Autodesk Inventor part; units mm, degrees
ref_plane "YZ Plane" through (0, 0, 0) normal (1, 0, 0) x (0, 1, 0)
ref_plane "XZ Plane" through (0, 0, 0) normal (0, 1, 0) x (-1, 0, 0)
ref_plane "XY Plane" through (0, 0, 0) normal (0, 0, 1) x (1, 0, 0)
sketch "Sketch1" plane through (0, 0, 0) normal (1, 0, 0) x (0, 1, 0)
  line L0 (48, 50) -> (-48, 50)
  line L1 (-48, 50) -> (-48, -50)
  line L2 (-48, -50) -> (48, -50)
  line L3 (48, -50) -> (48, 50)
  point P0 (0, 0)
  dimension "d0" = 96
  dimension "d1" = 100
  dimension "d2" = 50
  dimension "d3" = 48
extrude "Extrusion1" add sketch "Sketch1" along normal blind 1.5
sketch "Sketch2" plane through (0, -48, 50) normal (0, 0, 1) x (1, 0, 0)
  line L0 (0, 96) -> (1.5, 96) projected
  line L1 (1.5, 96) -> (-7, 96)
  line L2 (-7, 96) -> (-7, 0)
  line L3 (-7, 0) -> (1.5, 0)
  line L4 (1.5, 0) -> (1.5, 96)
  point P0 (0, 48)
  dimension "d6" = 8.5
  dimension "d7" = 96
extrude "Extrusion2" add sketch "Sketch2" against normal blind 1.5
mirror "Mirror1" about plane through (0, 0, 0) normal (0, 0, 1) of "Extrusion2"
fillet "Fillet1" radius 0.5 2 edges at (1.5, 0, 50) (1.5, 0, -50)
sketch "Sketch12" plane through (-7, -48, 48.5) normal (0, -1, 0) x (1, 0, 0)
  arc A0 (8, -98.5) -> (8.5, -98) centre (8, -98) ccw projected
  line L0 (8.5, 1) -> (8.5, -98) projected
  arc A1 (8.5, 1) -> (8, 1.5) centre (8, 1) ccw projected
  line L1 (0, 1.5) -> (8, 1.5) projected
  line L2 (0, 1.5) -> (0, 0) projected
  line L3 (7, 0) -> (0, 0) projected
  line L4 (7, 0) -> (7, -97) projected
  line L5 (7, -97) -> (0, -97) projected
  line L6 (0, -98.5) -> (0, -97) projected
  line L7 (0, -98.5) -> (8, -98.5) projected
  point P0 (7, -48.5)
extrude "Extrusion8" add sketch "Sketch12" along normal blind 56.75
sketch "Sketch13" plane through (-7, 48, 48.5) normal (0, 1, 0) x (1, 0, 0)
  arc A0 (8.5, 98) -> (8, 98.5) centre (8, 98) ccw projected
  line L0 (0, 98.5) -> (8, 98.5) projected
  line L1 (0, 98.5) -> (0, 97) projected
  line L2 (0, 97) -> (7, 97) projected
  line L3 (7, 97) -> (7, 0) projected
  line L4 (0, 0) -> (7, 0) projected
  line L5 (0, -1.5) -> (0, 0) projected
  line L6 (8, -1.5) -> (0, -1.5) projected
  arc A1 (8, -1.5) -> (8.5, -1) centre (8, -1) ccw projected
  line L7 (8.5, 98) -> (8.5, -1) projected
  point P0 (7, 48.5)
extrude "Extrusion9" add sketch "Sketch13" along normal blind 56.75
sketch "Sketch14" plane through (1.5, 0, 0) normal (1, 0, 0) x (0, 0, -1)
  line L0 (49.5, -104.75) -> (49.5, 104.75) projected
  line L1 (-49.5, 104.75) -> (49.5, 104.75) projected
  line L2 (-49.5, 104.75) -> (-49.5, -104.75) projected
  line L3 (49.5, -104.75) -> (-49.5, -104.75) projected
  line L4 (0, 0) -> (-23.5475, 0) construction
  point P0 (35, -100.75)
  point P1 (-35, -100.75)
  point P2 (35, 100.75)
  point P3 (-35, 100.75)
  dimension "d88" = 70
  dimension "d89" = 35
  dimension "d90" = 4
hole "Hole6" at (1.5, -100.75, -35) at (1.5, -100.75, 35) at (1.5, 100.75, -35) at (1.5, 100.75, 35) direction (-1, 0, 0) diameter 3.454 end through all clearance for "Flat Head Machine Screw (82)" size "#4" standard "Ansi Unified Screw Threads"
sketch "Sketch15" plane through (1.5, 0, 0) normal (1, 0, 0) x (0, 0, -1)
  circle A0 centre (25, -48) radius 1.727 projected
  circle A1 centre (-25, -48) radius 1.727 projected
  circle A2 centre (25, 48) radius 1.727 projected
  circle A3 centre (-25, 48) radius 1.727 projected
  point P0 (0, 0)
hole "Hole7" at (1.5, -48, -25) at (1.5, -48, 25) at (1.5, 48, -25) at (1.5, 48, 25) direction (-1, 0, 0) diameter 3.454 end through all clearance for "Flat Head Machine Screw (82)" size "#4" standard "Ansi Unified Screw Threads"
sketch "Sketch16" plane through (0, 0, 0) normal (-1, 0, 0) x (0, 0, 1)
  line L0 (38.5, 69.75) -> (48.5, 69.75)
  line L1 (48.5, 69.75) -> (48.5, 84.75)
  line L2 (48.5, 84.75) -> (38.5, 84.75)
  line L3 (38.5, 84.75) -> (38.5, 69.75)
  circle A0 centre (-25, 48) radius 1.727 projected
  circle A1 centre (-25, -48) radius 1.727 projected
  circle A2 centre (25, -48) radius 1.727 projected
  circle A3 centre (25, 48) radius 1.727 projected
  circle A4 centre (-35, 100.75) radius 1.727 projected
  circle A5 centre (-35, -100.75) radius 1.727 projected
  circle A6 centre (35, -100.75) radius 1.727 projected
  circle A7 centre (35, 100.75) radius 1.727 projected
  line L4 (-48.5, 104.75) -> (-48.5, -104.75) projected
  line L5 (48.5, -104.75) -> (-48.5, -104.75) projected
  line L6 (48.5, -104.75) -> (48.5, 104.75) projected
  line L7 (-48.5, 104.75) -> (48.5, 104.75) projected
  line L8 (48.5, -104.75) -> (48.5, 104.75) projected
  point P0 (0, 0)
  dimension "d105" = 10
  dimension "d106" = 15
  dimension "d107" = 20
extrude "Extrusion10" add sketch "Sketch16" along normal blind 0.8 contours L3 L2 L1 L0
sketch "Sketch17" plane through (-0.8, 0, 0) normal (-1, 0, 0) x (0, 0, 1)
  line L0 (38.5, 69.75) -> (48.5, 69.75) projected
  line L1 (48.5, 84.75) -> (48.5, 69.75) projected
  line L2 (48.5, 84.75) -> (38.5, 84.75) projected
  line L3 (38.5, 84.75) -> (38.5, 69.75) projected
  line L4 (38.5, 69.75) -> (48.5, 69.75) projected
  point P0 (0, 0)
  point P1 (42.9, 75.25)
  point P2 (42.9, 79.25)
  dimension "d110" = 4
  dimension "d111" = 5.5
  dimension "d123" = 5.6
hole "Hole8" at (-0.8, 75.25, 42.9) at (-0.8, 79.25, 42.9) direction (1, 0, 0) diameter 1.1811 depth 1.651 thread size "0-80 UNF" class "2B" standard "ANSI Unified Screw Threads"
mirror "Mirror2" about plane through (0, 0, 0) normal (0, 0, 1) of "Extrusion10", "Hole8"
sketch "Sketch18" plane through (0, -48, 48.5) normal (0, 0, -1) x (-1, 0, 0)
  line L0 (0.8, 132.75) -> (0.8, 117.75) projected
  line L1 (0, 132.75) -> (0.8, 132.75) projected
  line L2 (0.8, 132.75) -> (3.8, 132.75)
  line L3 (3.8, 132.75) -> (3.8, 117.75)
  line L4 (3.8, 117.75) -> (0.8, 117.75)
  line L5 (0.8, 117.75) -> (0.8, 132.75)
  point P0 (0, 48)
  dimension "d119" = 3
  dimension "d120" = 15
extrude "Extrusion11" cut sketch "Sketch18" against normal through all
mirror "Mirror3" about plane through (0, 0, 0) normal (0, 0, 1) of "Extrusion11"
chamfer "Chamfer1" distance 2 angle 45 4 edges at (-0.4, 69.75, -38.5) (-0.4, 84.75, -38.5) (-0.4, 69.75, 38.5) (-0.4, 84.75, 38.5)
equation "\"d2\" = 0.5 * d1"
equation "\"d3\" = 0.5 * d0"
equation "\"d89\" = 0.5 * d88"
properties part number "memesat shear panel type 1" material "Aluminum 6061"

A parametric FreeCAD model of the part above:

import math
import FreeCAD as App
import Part
import Sketcher
Q = App.Units.Quantity


def edges_at(feature, points):
    """Names of the edges that pass closest to the given points."""
    edges = feature.Shape.Edges
    near = lambda p: min(range(len(edges)), key=lambda i: edges[i].distToShape(Part.Vertex(*p))[0])
    return sorted({f"Edge{near(p) + 1}" for p in points})

doc = App.newDocument("Part")
body = doc.addObject("PartDesign::Body", "Body")

sketch1 = body.newObject("Sketcher::SketchObject", "Sketch")
sketch1.AttachmentSupport = (doc.getObject("YZ_Plane"), [""])
sketch1.MapMode = "FlatFace"
sketch1.addGeometry([
    Part.LineSegment(App.Vector(48, -50, 0), App.Vector(48, 50, 0)),
    Part.LineSegment(App.Vector(48, 50, 0), App.Vector(-48, 50, 0)),
    Part.LineSegment(App.Vector(-48, 50, 0), App.Vector(-48, -50, 0)),
    Part.LineSegment(App.Vector(-48, -50, 0), App.Vector(48, -50, 0)),
], False)
sketch1.addConstraint([
    Sketcher.Constraint("Coincident", 0, 2, 1, 1),
    Sketcher.Constraint("Coincident", 1, 2, 2, 1),
    Sketcher.Constraint("Coincident", 2, 2, 3, 1),
    Sketcher.Constraint("Coincident", 3, 2, 0, 1),
    Sketcher.Constraint("Vertical", 0),
    Sketcher.Constraint("Horizontal", 1),
    Sketcher.Constraint("Vertical", 2),
    Sketcher.Constraint("Horizontal", 3),
    Sketcher.Constraint("Symmetric", 0, 2, 2, 2, -1, 1),
    Sketcher.Constraint("DistanceX", 1, 2, 1, 1, Q("96 mm")),
    Sketcher.Constraint("DistanceY", 0, 1, 0, 2, Q("100 mm")),
])
pad1 = body.newObject("PartDesign::Pad", "Pad")
pad1.Profile = sketch1
pad1.Length = 1.5

sketch2 = body.newObject("Sketcher::SketchObject", "Sketch001")
sketch2.AttachmentSupport = (doc.getObject("XY_Plane"), [""])
sketch2.MapMode = "FlatFace"
sketch2.AttachmentOffset = App.Placement(App.Vector(0, 0, 50), App.Rotation())
sketch2.addGeometry([
    Part.LineSegment(App.Vector(2, 48, 0), App.Vector(-7, 48, 0)),
    Part.LineSegment(App.Vector(-7, 48, 0), App.Vector(-7, -48, 0)),
    Part.LineSegment(App.Vector(-7, -48, 0), App.Vector(2, -48, 0)),
    Part.LineSegment(App.Vector(2, -48, 0), App.Vector(2, 48, 0)),
], False)
sketch2.addConstraint([
    Sketcher.Constraint("Coincident", 0, 2, 1, 1),
    Sketcher.Constraint("Coincident", 1, 2, 2, 1),
    Sketcher.Constraint("Coincident", 2, 2, 3, 1),
    Sketcher.Constraint("Coincident", 3, 2, 0, 1),
    Sketcher.Constraint("Horizontal", 0),
    Sketcher.Constraint("Vertical", 1),
    Sketcher.Constraint("Horizontal", 2),
    Sketcher.Constraint("Vertical", 3),
    Sketcher.Constraint("DistanceY", 1, 2, 1, 1, Q("96 mm")),
    Sketcher.Constraint("DistanceX", 0, 2, 0, 1, Q("8.5 mm")),
    Sketcher.Constraint("DistanceX", 0, 2, -1, 1, Q("7 mm")),
    Sketcher.Constraint("DistanceY", -1, 1, 0, 2, Q("48 mm")),
])
pad2 = body.newObject("PartDesign::Pad", "Pad001")
pad2.Profile = sketch2
pad2.Length = 1.5
pad2.Reversed = True
doc.recompute()

mirrored = body.newObject("PartDesign::Mirrored", "Mirrored")
mirrored.Originals = [pad2]
mirrored.MirrorPlane = (doc.getObject("XY_Plane"), [""])
body.Tip = mirrored
doc.recompute()

fillet = body.newObject("PartDesign::Fillet", "Fillet")
fillet.Base = (mirrored, edges_at(mirrored, [(1.5, 0, 50), (1.5, 0, -50)]))
fillet.Radius = 0.5

sketch3 = body.newObject("Sketcher::SketchObject", "Sketch002")
sketch3.AttachmentSupport = (doc.getObject("XZ_Plane"), [""])
sketch3.MapMode = "FlatFace"
sketch3.AttachmentOffset = App.Placement(App.Vector(0, 0, 48), App.Rotation())
sketch3.addGeometry([
    Part.LineSegment(App.Vector(-7, -50, 0), App.Vector(1, -50, 0)),
    Part.ArcOfCircle(Part.Circle(App.Vector(1, -49.5, 0), App.Vector(0, 0, 1), 0.5), math.radians(-90), math.radians(0)),
    Part.LineSegment(App.Vector(1.5, -49.5, 0), App.Vector(1.5, 49.5, 0)),
    Part.ArcOfCircle(Part.Circle(App.Vector(1, 49.5, 0), App.Vector(0, 0, 1), 0.5), math.radians(0), math.radians(90)),
    Part.LineSegment(App.Vector(1, 50, 0), App.Vector(-7, 50, 0)),
    Part.LineSegment(App.Vector(-7, 50, 0), App.Vector(-7, 48.5, 0)),
    Part.LineSegment(App.Vector(-7, 48.5, 0), App.Vector(0, 48.5, 0)),
    Part.LineSegment(App.Vector(0, 48.5, 0), App.Vector(0, -48.5, 0)),
    Part.LineSegment(App.Vector(0, -48.5, 0), App.Vector(-7, -48.5, 0)),
    Part.LineSegment(App.Vector(-7, -48.5, 0), App.Vector(-7, -50, 0)),
], False)
sketch3.addConstraint([
    Sketcher.Constraint("Tangent", 0, 2, 1, 1),
    Sketcher.Constraint("Tangent", 1, 2, 2, 1),
    Sketcher.Constraint("Tangent", 2, 2, 3, 1),
    Sketcher.Constraint("Tangent", 3, 2, 4, 1),
    Sketcher.Constraint("Coincident", 4, 2, 5, 1),
    Sketcher.Constraint("Coincident", 5, 2, 6, 1),
    Sketcher.Constraint("Coincident", 6, 2, 7, 1),
    Sketcher.Constraint("Coincident", 7, 2, 8, 1),
    Sketcher.Constraint("Coincident", 8, 2, 9, 1),
    Sketcher.Constraint("Coincident", 9, 2, 0, 1),
    Sketcher.Constraint("Horizontal", 0),
    Sketcher.Constraint("Vertical", 2),
    Sketcher.Constraint("Horizontal", 4),
    Sketcher.Constraint("Vertical", 5),
    Sketcher.Constraint("Horizontal", 6),
    Sketcher.Constraint("Vertical", 7),
    Sketcher.Constraint("Horizontal", 8),
    Sketcher.Constraint("Vertical", 9),
    Sketcher.Constraint("Equal", 1, 3),
    Sketcher.Constraint("Symmetric", 6, 2, 7, 2, -1, 1),
    Sketcher.Constraint("Symmetric", 4, 2, 9, 2, -1),
    Sketcher.Constraint("Radius", 1, Q("0.5 mm")),
    Sketcher.Constraint("DistanceX", 0, 1, 0, 2, Q("8 mm")),
    Sketcher.Constraint("DistanceX", 6, 1, 6, 2, Q("7 mm")),
    Sketcher.Constraint("DistanceY", 2, 1, 2, 2, Q("99 mm")),
    Sketcher.Constraint("DistanceY", 7, 2, 7, 1, Q("97 mm")),
])
pad3 = body.newObject("PartDesign::Pad", "Pad002")
pad3.Profile = sketch3
pad3.Length = 56.75

sketch4 = body.newObject("Sketcher::SketchObject", "Sketch003")
sketch4.AttachmentSupport = (doc.getObject("XZ_Plane"), [""])
sketch4.MapMode = "FlatFace"
sketch4.AttachmentOffset = App.Placement(App.Vector(0, 0, -48), App.Rotation())
sketch4.addGeometry([
    Part.LineSegment(App.Vector(1.5, 49.5, 0), App.Vector(1.5, -49.5, 0)),
    Part.ArcOfCircle(Part.Circle(App.Vector(1, -49.5, 0), App.Vector(0, 0, 1), 0.5), math.radians(-90), math.radians(0)),
    Part.LineSegment(App.Vector(1, -50, 0), App.Vector(-7, -50, 0)),
    Part.LineSegment(App.Vector(-7, -50, 0), App.Vector(-7, -48.5, 0)),
    Part.LineSegment(App.Vector(-7, -48.5, 0), App.Vector(0, -48.5, 0)),
    Part.LineSegment(App.Vector(0, -48.5, 0), App.Vector(0, 48.5, 0)),
    Part.LineSegment(App.Vector(0, 48.5, 0), App.Vector(-7, 48.5, 0)),
    Part.LineSegment(App.Vector(-7, 48.5, 0), App.Vector(-7, 50, 0)),
    Part.LineSegment(App.Vector(-7, 50, 0), App.Vector(1, 50, 0)),
    Part.ArcOfCircle(Part.Circle(App.Vector(1, 49.5, 0), App.Vector(0, 0, 1), 0.5), math.radians(0), math.radians(90)),
], False)
sketch4.addConstraint([
    Sketcher.Constraint("Tangent", 0, 2, 1, 2),
    Sketcher.Constraint("Tangent", 1, 1, 2, 1),
    Sketcher.Constraint("Coincident", 2, 2, 3, 1),
    Sketcher.Constraint("Coincident", 3, 2, 4, 1),
    Sketcher.Constraint("Coincident", 4, 2, 5, 1),
    Sketcher.Constraint("Coincident", 5, 2, 6, 1),
    Sketcher.Constraint("Coincident", 6, 2, 7, 1),
    Sketcher.Constraint("Coincident", 7, 2, 8, 1),
    Sketcher.Constraint("Tangent", 8, 2, 9, 2),
    Sketcher.Constraint("Tangent", 9, 1, 0, 1),
    Sketcher.Constraint("Vertical", 0),
    Sketcher.Constraint("Horizontal", 2),
    Sketcher.Constraint("Vertical", 3),
    Sketcher.Constraint("Horizontal", 4),
    Sketcher.Constraint("Vertical", 5),
    Sketcher.Constraint("Horizontal", 6),
    Sketcher.Constraint("Vertical", 7),
    Sketcher.Constraint("Horizontal", 8),
    Sketcher.Constraint("Equal", 1, 9),
    Sketcher.Constraint("Symmetric", 4, 2, 5, 2, -1, 1),
    Sketcher.Constraint("Symmetric", 2, 2, 7, 2, -1),
    Sketcher.Constraint("Radius", 1, Q("0.5 mm")),
    Sketcher.Constraint("DistanceX", 2, 2, 2, 1, Q("8 mm")),
    Sketcher.Constraint("DistanceX", 4, 1, 4, 2, Q("7 mm")),
    Sketcher.Constraint("DistanceY", 0, 2, 0, 1, Q("99 mm")),
    Sketcher.Constraint("DistanceY", 5, 1, 5, 2, Q("97 mm")),
])
pad4 = body.newObject("PartDesign::Pad", "Pad003")
pad4.Profile = sketch4
pad4.Length = 56.75
pad4.Reversed = True

sketch5 = body.newObject("Sketcher::SketchObject", "Sketch004")
sketch5.AttachmentSupport = (doc.getObject("YZ_Plane"), [""])
sketch5.MapMode = "FlatFace"
sketch5.AttachmentOffset = App.Placement(App.Vector(0, 0, 1.5), App.Rotation())
sketch5.addGeometry([
    Part.Circle(App.Vector(-100.8, -35, 0), App.Vector(0, 0, 1), 1.7),
    Part.Circle(App.Vector(-100.8, 35, 0), App.Vector(0, 0, 1), 1.7),
    Part.Circle(App.Vector(100.8, -35, 0), App.Vector(0, 0, 1), 1.7),
    Part.Circle(App.Vector(100.8, 35, 0), App.Vector(0, 0, 1), 1.7),
], False)
sketch5.addConstraint([
    Sketcher.Constraint("Equal", 0, 1),
    Sketcher.Constraint("Equal", 1, 2),
    Sketcher.Constraint("Equal", 2, 3),
    Sketcher.Constraint("Symmetric", 1, 3, 2, 3, -1, 1),
    Sketcher.Constraint("Symmetric", 0, 3, 3, 3, -1, 1),
    Sketcher.Constraint("Symmetric", 0, 3, 2, 3, -2),
    Sketcher.Constraint("Diameter", 0, Q("3.454 mm")),
    Sketcher.Constraint("DistanceY", 0, 3, -1, 1, Q("35 mm")),
    Sketcher.Constraint("DistanceX", 0, 3, 2, 3, Q("201.5 mm")),
])
doc.recompute()
hole = body.newObject("PartDesign::Hole", "Hole")
hole.Profile = sketch5
hole.ThreadType = "None"
hole.Diameter = 3.454
hole.DepthType = "ThroughAll"

sketch6 = body.newObject("Sketcher::SketchObject", "Sketch005")
sketch6.AttachmentSupport = (doc.getObject("YZ_Plane"), [""])
sketch6.MapMode = "FlatFace"
sketch6.AttachmentOffset = App.Placement(App.Vector(0, 0, 1.5), App.Rotation())
sketch6.addGeometry([
    Part.Circle(App.Vector(-48, -25, 0), App.Vector(0, 0, 1), 1.7),
    Part.Circle(App.Vector(-48, 25, 0), App.Vector(0, 0, 1), 1.7),
    Part.Circle(App.Vector(48, -25, 0), App.Vector(0, 0, 1), 1.7),
    Part.Circle(App.Vector(48, 25, 0), App.Vector(0, 0, 1), 1.7),
], False)
sketch6.addConstraint([
    Sketcher.Constraint("Equal", 0, 1),
    Sketcher.Constraint("Equal", 1, 2),
    Sketcher.Constraint("Equal", 2, 3),
    Sketcher.Constraint("Symmetric", 1, 3, 2, 3, -1, 1),
    Sketcher.Constraint("Symmetric", 0, 3, 3, 3, -1, 1),
    Sketcher.Constraint("Symmetric", 0, 3, 2, 3, -2),
    Sketcher.Constraint("Diameter", 0, Q("3.454 mm")),
    Sketcher.Constraint("DistanceX", 0, 3, -1, 1, Q("48 mm")),
    Sketcher.Constraint("DistanceY", 0, 3, -1, 1, Q("25 mm")),
])
doc.recompute()
hole2 = body.newObject("PartDesign::Hole", "Hole001")
hole2.Profile = sketch6
hole2.ThreadType = "None"
hole2.Diameter = 3.454
hole2.DepthType = "ThroughAll"

sketch7 = body.newObject("Sketcher::SketchObject", "Sketch006")
sketch7.AttachmentSupport = (doc.getObject("YZ_Plane"), [""])
sketch7.MapMode = "FlatFace"
sketch7.addGeometry([
    Part.LineSegment(App.Vector(85, 38, 0), App.Vector(70, 38, 0)),
    Part.LineSegment(App.Vector(70, 38, 0), App.Vector(70, 48, 0)),
    Part.LineSegment(App.Vector(70, 48, 0), App.Vector(85, 48, 0)),
    Part.LineSegment(App.Vector(85, 48, 0), App.Vector(85, 38, 0)),
], False)
sketch7.addConstraint([
    Sketcher.Constraint("Coincident", 0, 2, 1, 1),
    Sketcher.Constraint("Coincident", 1, 2, 2, 1),
    Sketcher.Constraint("Coincident", 2, 2, 3, 1),
    Sketcher.Constraint("Coincident", 3, 2, 0, 1),
    Sketcher.Constraint("Horizontal", 0),
    Sketcher.Constraint("Vertical", 1),
    Sketcher.Constraint("Horizontal", 2),
    Sketcher.Constraint("Vertical", 3),
    Sketcher.Constraint("DistanceX", 0, 2, 0, 1, Q("15 mm")),
    Sketcher.Constraint("DistanceY", 1, 1, 1, 2, Q("10 mm")),
    Sketcher.Constraint("DistanceY", -1, 1, 0, 2, Q("38.5 mm")),
    Sketcher.Constraint("DistanceX", -1, 1, 0, 2, Q("69.75 mm")),
])
pad5 = body.newObject("PartDesign::Pad", "Pad004")
pad5.Profile = sketch7
pad5.Length = 0.8
pad5.Reversed = True

sketch8 = body.newObject("Sketcher::SketchObject", "Sketch007")
sketch8.AttachmentSupport = (doc.getObject("YZ_Plane"), [""])
sketch8.MapMode = "FlatFace"
sketch8.AttachmentOffset = App.Placement(App.Vector(0, 0, -0.8), App.Rotation())
sketch8.addGeometry([
    Part.Circle(App.Vector(75.2, 42.9, 0), App.Vector(0, 0, 1), 0.6),
    Part.Circle(App.Vector(79.2, 42.9, 0), App.Vector(0, 0, 1), 0.6),
], False)
sketch8.addConstraint([
    Sketcher.Constraint("Equal", 0, 1),
    Sketcher.Constraint("Horizontal", 0, 3, 1, 3),
    Sketcher.Constraint("Diameter", 0, Q("1.181 mm")),
    Sketcher.Constraint("DistanceX", 0, 3, 1, 3, Q("4 mm")),
    Sketcher.Constraint("DistanceY", -1, 1, 0, 3, Q("42.9 mm")),
    Sketcher.Constraint("DistanceX", -1, 1, 0, 3, Q("75.25 mm")),
])
doc.recompute()
hole3 = body.newObject("PartDesign::Hole", "Hole002")
hole3.Profile = sketch8
hole3.ThreadType = "None"
hole3.Diameter = 1.1811
hole3.DepthType = "Dimension"
hole3.Depth = 1.651
hole3.DrillPoint = "Flat"
hole3.Reversed = True
doc.recompute()

mirrored2 = body.newObject("PartDesign::Mirrored", "Mirrored001")
mirrored2.Originals = [pad5, hole3]
mirrored2.MirrorPlane = (doc.getObject("XY_Plane"), [""])
body.Tip = mirrored2

sketch9 = body.newObject("Sketcher::SketchObject", "Sketch008")
sketch9.AttachmentSupport = (doc.getObject("XY_Plane"), [""])
sketch9.MapMode = "FlatFace"
sketch9.AttachmentOffset = App.Placement(App.Vector(0, 0, 48.5), App.Rotation())
sketch9.addGeometry([
    Part.LineSegment(App.Vector(-3.8, 84.8, 0), App.Vector(-0.8, 84.8, 0)),
    Part.LineSegment(App.Vector(-0.8, 84.8, 0), App.Vector(-0.8, 69.8, 0)),
    Part.LineSegment(App.Vector(-0.8, 69.8, 0), App.Vector(-3.8, 69.8, 0)),
    Part.LineSegment(App.Vector(-3.8, 69.8, 0), App.Vector(-3.8, 84.8, 0)),
], False)
sketch9.addConstraint([
    Sketcher.Constraint("Coincident", 0, 2, 1, 1),
    Sketcher.Constraint("Coincident", 1, 2, 2, 1),
    Sketcher.Constraint("Coincident", 2, 2, 3, 1),
    Sketcher.Constraint("Coincident", 3, 2, 0, 1),
    Sketcher.Constraint("Horizontal", 0),
    Sketcher.Constraint("Vertical", 1),
    Sketcher.Constraint("Horizontal", 2),
    Sketcher.Constraint("Vertical", 3),
    Sketcher.Constraint("DistanceX", 0, 1, 0, 2, Q("3 mm")),
    Sketcher.Constraint("DistanceY", 1, 2, 1, 1, Q("15 mm")),
    Sketcher.Constraint("DistanceX", 0, 2, -1, 1, Q("0.8 mm")),
    Sketcher.Constraint("DistanceY", -1, 1, 0, 2, Q("84.75 mm")),
])
pocket1 = body.newObject("PartDesign::Pocket", "Pocket")
pocket1.Profile = sketch9
pocket1.Type = "ThroughAll"
pocket1.Reversed = True
doc.recompute()

mirrored3 = body.newObject("PartDesign::Mirrored", "Mirrored002")
mirrored3.Originals = [pocket1]
mirrored3.MirrorPlane = (doc.getObject("XY_Plane"), [""])
body.Tip = mirrored3
doc.recompute()

chamfer = body.newObject("PartDesign::Chamfer", "Chamfer")
chamfer.Base = (mirrored3, edges_at(mirrored3, [
    (-0.4, 69.75, -38.5),
    (-0.4, 84.75, -38.5),
    (-0.4, 69.75, 38.5),
    (-0.4, 84.75, 38.5),
]))
chamfer.Size = 2

doc.recompute()
